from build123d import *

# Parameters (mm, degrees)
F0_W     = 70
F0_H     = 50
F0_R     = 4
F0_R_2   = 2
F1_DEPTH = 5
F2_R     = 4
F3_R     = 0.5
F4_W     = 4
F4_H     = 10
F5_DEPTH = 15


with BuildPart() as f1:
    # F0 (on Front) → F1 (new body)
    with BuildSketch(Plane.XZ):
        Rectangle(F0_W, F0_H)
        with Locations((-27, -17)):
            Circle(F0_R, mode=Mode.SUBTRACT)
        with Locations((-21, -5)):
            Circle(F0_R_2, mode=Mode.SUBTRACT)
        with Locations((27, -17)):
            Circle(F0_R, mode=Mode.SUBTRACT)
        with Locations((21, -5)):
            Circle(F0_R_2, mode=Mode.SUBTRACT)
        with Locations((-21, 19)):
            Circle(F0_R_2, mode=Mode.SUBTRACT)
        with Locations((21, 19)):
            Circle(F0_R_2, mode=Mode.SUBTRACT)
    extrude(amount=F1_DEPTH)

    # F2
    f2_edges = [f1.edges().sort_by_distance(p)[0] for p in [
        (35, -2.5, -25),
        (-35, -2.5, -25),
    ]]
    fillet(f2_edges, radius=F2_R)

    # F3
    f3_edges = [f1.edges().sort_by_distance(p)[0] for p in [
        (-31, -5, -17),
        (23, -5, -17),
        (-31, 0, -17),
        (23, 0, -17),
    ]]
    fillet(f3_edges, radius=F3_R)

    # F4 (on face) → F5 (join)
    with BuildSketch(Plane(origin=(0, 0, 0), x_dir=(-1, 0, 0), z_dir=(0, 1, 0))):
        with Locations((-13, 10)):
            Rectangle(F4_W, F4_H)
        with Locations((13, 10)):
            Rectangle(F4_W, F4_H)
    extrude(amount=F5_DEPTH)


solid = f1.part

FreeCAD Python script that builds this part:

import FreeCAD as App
import Part
import Sketcher

V = App.Vector


def edges_at(feature, points):
    """Names of the edges that pass closest to the given points."""
    edges = feature.Shape.Edges
    near = lambda p: min(range(len(edges)), key=lambda i: edges[i].distToShape(Part.Vertex(*p))[0])
    return sorted({f"Edge{near(p) + 1}" for p in points})

doc = App.newDocument("Part")
params = doc.addObject("Spreadsheet::Sheet", "Params")
for row, (alias, value) in enumerate([
    ("sketch1_diameter", "8 mm"),
    ("sketch1_diameter2", "4 mm"),
    ("sketch1_width", "70 mm"),
    ("sketch1_height", "50 mm"),
    ("pad1_length", "5 mm"),
    ("fillet_radius", "4 mm"),
    ("fillet2_radius", "0.5 mm"),
    ("sketch2_width", "4 mm"),
    ("sketch2_height", "10 mm"),
    ("pad2_length", "15 mm"),
], start=1):
    params.set(f"A{row}", alias)
    params.set(f"B{row}", "=" + value)
    params.setAlias(f"B{row}", alias)

body = doc.addObject("PartDesign::Body", "Body")

# Sketch on XZ plane
sketch1 = body.newObject("Sketcher::SketchObject", "Sketch")
sketch1.AttachmentSupport = (doc.getObject("XZ_Plane"), [""])
sketch1.MapMode = "FlatFace"
sketch1.addGeometry([
    Part.LineSegment(V(-35, 25, 0), V(-35, -25, 0)),  # 0
    Part.LineSegment(V(-35, -25, 0), V(35, -25, 0)),  # 1
    Part.LineSegment(V(35, -25, 0), V(35, 25, 0)),  # 2
    Part.LineSegment(V(35, 25, 0), V(-35, 25, 0)),  # 3
    Part.Circle(V(-27, -17, 0), V(0, 0, 1), 4),  # 4
    Part.Circle(V(-21, -5, 0), V(0, 0, 1), 2),  # 5
    Part.Circle(V(27, -17, 0), V(0, 0, 1), 4),  # 6
    Part.Circle(V(21, -5, 0), V(0, 0, 1), 2),  # 7
    Part.Circle(V(-21, 19, 0), V(0, 0, 1), 2),  # 8
    Part.Circle(V(21, 19, 0), V(0, 0, 1), 2),  # 9
], False)
sketch1.addConstraint([
    Sketcher.Constraint("Coincident", 0, 2, 1, 1),
    Sketcher.Constraint("Coincident", 1, 2, 2, 1),
    Sketcher.Constraint("Coincident", 2, 2, 3, 1),
    Sketcher.Constraint("Coincident", 3, 2, 0, 1),
    Sketcher.Constraint("Vertical", 0),
    Sketcher.Constraint("Horizontal", 1),
    Sketcher.Constraint("Vertical", 2),
    Sketcher.Constraint("Horizontal", 3),
    Sketcher.Constraint("Equal", 4, 6),
    Sketcher.Constraint("Equal", 5, 7),
    Sketcher.Constraint("Equal", 7, 8),
    Sketcher.Constraint("Equal", 8, 9),
    Sketcher.Constraint("Symmetric", 0, 2, 2, 2, -1, 1),
    Sketcher.Constraint("Symmetric", 4, 3, 6, 3, -2),
    Sketcher.Constraint("Symmetric", 5, 3, 7, 3, -2),
    Sketcher.Constraint("Symmetric", 8, 3, 9, 3, -2),
    Sketcher.Constraint("Vertical", 5, 3, 8, 3),
    Sketcher.Constraint("Diameter", 4, 8.0),
    Sketcher.Constraint("Diameter", 5, 4.0),
    Sketcher.Constraint("DistanceX", 1, 1, 1, 2, 70.0),
    Sketcher.Constraint("DistanceY", 0, 2, 0, 1, 50.0),
    Sketcher.Constraint("DistanceX", 4, 3, -1, 1, 27.0),
    Sketcher.Constraint("DistanceY", 4, 3, -1, 1, 17.0),
    Sketcher.Constraint("DistanceX", 5, 3, -1, 1, 21.0),
    Sketcher.Constraint("DistanceY", 5, 3, -1, 1, 5.0),
    Sketcher.Constraint("DistanceY", -1, 1, 8, 3, 19.0),
])
sketch1.setExpression("Constraints[17]", "Params.sketch1_diameter")
sketch1.setExpression("Constraints[18]", "Params.sketch1_diameter2")
sketch1.setExpression("Constraints[19]", "Params.sketch1_width")
sketch1.setExpression("Constraints[20]", "Params.sketch1_height")
pad1 = body.newObject("PartDesign::Pad", "Pad")
pad1.Profile = sketch1
pad1.setExpression("Length", "Params.pad1_length")
doc.recompute()

fillet = body.newObject("PartDesign::Fillet", "Fillet")
fillet.Base = (pad1, edges_at(pad1, [(35, -2.5, -25), (-35, -2.5, -25)]))
fillet.setExpression("Radius", "Params.fillet_radius")
doc.recompute()

fillet2 = body.newObject("PartDesign::Fillet", "Fillet001")
fillet2.Base = (fillet, edges_at(fillet, [
    (-31, -5, -17),
    (23, -5, -17),
    (-31, 0, -17),
    (23, 0, -17),
]))
fillet2.setExpression("Radius", "Params.fillet2_radius")

# Sketch on XZ plane
sketch2 = body.newObject("Sketcher::SketchObject", "Sketch001")
sketch2.AttachmentSupport = (doc.getObject("XZ_Plane"), [""])
sketch2.MapMode = "FlatFace"
sketch2.addGeometry([
    Part.LineSegment(V(15, 15, 0), V(15, 5, 0)),  # 0
    Part.LineSegment(V(15, 5, 0), V(11, 5, 0)),  # 1
    Part.LineSegment(V(11, 5, 0), V(11, 15, 0)),  # 2
    Part.LineSegment(V(11, 15, 0), V(15, 15, 0)),  # 3
    Part.LineSegment(V(-11, 15, 0), V(-11, 5, 0)),  # 4
    Part.LineSegment(V(-11, 5, 0), V(-15, 5, 0)),  # 5
    Part.LineSegment(V(-15, 5, 0), V(-15, 15, 0)),  # 6
    Part.LineSegment(V(-15, 15, 0), V(-11, 15, 0)),  # 7
], False)
sketch2.addConstraint([
    Sketcher.Constraint("Coincident", 0, 2, 1, 1),
    Sketcher.Constraint("Coincident", 1, 2, 2, 1),
    Sketcher.Constraint("Coincident", 2, 2, 3, 1),
    Sketcher.Constraint("Coincident", 3, 2, 0, 1),
    Sketcher.Constraint("Coincident", 4, 2, 5, 1),
    Sketcher.Constraint("Coincident", 5, 2, 6, 1),
    Sketcher.Constraint("Coincident", 6, 2, 7, 1),
    Sketcher.Constraint("Coincident", 7, 2, 4, 1),
    Sketcher.Constraint("Vertical", 0),
    Sketcher.Constraint("Horizontal", 1),
    Sketcher.Constraint("Vertical", 2),
    Sketcher.Constraint("Horizontal", 3),
    Sketcher.Constraint("Vertical", 4),
    Sketcher.Constraint("Horizontal", 5),
    Sketcher.Constraint("Vertical", 6),
    Sketcher.Constraint("Horizontal", 7),
    Sketcher.Constraint("Symmetric", 1, 2, 4, 2, -2),
    Sketcher.Constraint("Symmetric", 3, 2, 6, 2, -2),
    Sketcher.Constraint("DistanceX", 1, 2, 1, 1, 4.0),
    Sketcher.Constraint("DistanceY", 0, 2, 0, 1, 10.0),
    Sketcher.Constraint("DistanceX", -1, 1, 0, 2, 15.0),
    Sketcher.Constraint("DistanceY", -1, 1, 0, 2, 5.0),
])
sketch2.setExpression("Constraints[18]", "Params.sketch2_width")
sketch2.setExpression("Constraints[19]", "Params.sketch2_height")
pad2 = body.newObject("PartDesign::Pad", "Pad001")
pad2.Profile = sketch2
pad2.setExpression("Length", "Params.pad2_length")
pad2.Reversed = True

doc.recompute()
